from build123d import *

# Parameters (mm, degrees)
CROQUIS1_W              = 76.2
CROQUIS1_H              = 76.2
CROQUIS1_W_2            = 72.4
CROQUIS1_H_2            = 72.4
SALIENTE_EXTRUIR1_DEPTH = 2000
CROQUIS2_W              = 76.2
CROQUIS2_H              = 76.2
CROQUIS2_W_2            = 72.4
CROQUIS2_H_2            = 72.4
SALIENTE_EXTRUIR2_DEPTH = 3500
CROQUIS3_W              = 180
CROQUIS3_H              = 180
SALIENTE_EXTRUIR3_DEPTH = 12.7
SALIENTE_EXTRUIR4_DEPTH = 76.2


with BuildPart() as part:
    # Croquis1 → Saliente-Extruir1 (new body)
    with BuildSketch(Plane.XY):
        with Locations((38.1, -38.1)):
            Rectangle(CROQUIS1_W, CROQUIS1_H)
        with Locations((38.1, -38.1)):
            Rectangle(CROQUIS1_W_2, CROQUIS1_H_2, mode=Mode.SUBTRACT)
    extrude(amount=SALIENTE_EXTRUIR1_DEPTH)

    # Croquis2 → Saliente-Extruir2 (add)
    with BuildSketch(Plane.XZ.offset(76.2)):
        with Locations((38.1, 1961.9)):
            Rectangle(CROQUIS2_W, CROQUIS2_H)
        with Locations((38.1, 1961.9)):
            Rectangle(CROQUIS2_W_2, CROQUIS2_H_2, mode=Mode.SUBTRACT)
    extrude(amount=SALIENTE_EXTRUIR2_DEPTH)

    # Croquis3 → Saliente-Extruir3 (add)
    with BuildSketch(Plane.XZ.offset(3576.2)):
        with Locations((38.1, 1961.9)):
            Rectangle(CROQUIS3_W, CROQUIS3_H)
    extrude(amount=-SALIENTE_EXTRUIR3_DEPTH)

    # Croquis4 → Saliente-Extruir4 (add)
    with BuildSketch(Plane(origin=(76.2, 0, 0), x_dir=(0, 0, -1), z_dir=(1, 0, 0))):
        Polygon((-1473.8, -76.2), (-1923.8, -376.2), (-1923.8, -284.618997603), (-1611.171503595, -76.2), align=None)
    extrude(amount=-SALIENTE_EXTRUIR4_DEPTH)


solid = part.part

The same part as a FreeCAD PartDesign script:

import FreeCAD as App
import Part
import Sketcher

doc = App.newDocument("Part")
body = doc.addObject("PartDesign::Body", "Body")

sketch1 = body.newObject("Sketcher::SketchObject", "Sketch")
sketch1.AttachmentSupport = (doc.getObject("XY_Plane"), [""])
sketch1.MapMode = "FlatFace"
sketch1.addGeometry([
    Part.LineSegment(App.Vector(0, 0, 0), App.Vector(0, -76.2, 0)),
    Part.LineSegment(App.Vector(0, -76.2, 0), App.Vector(76.2, -76.2, 0)),
    Part.LineSegment(App.Vector(76.2, -76.2, 0), App.Vector(76.2, 0, 0)),
    Part.LineSegment(App.Vector(76.2, 0, 0), App.Vector(0, 0, 0)),
    Part.LineSegment(App.Vector(74.3, -74.3, 0), App.Vector(1.9, -74.3, 0)),
    Part.LineSegment(App.Vector(1.9, -74.3, 0), App.Vector(1.9, -1.9, 0)),
    Part.LineSegment(App.Vector(1.9, -1.9, 0), App.Vector(74.3, -1.9, 0)),
    Part.LineSegment(App.Vector(74.3, -1.9, 0), App.Vector(74.3, -74.3, 0)),
], False)
sketch1.addConstraint([
    Sketcher.Constraint("Coincident", 0, 2, 1, 1),
    Sketcher.Constraint("Coincident", 1, 2, 2, 1),
    Sketcher.Constraint("Coincident", 2, 2, 3, 1),
    Sketcher.Constraint("Coincident", 3, 2, 0, 1),
    Sketcher.Constraint("Coincident", 4, 2, 5, 1),
    Sketcher.Constraint("Coincident", 5, 2, 6, 1),
    Sketcher.Constraint("Coincident", 6, 2, 7, 1),
    Sketcher.Constraint("Coincident", 7, 2, 4, 1),
    Sketcher.Constraint("Vertical", 0),
    Sketcher.Constraint("Horizontal", 1),
    Sketcher.Constraint("Vertical", 2),
    Sketcher.Constraint("Horizontal", 3),
    Sketcher.Constraint("Horizontal", 4),
    Sketcher.Constraint("Vertical", 5),
    Sketcher.Constraint("Horizontal", 6),
    Sketcher.Constraint("Vertical", 7),
    Sketcher.Constraint("Coincident", 3, 2, -1, 1),
    Sketcher.Constraint("Equal", 3, 0),
    Sketcher.Constraint("Equal", 6, 5),
    Sketcher.Constraint("DistanceX", 1, 1, 1, 2, 76.2),
    Sketcher.Constraint("DistanceX", 4, 2, 4, 1, 72.4),
    Sketcher.Constraint("DistanceX", -1, 1, 4, 2, 1.9),
    Sketcher.Constraint("DistanceY", 4, 2, -1, 1, 74.3),
])
pad1 = body.newObject("PartDesign::Pad", "Pad")
pad1.Profile = sketch1
pad1.Length = 2000

sketch2 = body.newObject("Sketcher::SketchObject", "Sketch001")
sketch2.AttachmentSupport = (doc.getObject("XZ_Plane"), [""])
sketch2.MapMode = "FlatFace"
sketch2.AttachmentOffset = App.Placement(App.Vector(0, 0, 76.2), App.Rotation())
sketch2.addGeometry([
    Part.LineSegment(App.Vector(0, 2000, 0), App.Vector(0, 1923.8, 0)),
    Part.LineSegment(App.Vector(0, 1923.8, 0), App.Vector(76.2, 1923.8, 0)),
    Part.LineSegment(App.Vector(76.2, 1923.8, 0), App.Vector(76.2, 2000, 0)),
    Part.LineSegment(App.Vector(76.2, 2000, 0), App.Vector(0, 2000, 0)),
    Part.LineSegment(App.Vector(74.3, 1925.7, 0), App.Vector(1.9, 1925.7, 0)),
    Part.LineSegment(App.Vector(1.9, 1925.7, 0), App.Vector(1.9, 1998.1, 0)),
    Part.LineSegment(App.Vector(1.9, 1998.1, 0), App.Vector(74.3, 1998.1, 0)),
    Part.LineSegment(App.Vector(74.3, 1998.1, 0), App.Vector(74.3, 1925.7, 0)),
], False)
sketch2.addConstraint([
    Sketcher.Constraint("Coincident", 0, 2, 1, 1),
    Sketcher.Constraint("Coincident", 1, 2, 2, 1),
    Sketcher.Constraint("Coincident", 2, 2, 3, 1),
    Sketcher.Constraint("Coincident", 3, 2, 0, 1),
    Sketcher.Constraint("Coincident", 4, 2, 5, 1),
    Sketcher.Constraint("Coincident", 5, 2, 6, 1),
    Sketcher.Constraint("Coincident", 6, 2, 7, 1),
    Sketcher.Constraint("Coincident", 7, 2, 4, 1),
    Sketcher.Constraint("Vertical", 0),
    Sketcher.Constraint("Horizontal", 1),
    Sketcher.Constraint("Vertical", 2),
    Sketcher.Constraint("Horizontal", 3),
    Sketcher.Constraint("Horizontal", 4),
    Sketcher.Constraint("Vertical", 5),
    Sketcher.Constraint("Horizontal", 6),
    Sketcher.Constraint("Vertical", 7),
    Sketcher.Constraint("PointOnObject", 0, 2, -2),
    Sketcher.Constraint("Equal", 3, 0),
    Sketcher.Constraint("Equal", 6, 5),
    Sketcher.Constraint("DistanceX", 1, 1, 1, 2, 76.2),
    Sketcher.Constraint("DistanceX", 4, 2, 4, 1, 72.4),
    Sketcher.Constraint("DistanceY", -1, 1, 2, 2, 2000.0),
    Sketcher.Constraint("DistanceX", -1, 1, 4, 2, 1.9),
    Sketcher.Constraint("DistanceY", -1, 1, 4, 2, 1925.7),
])
pad2 = body.newObject("PartDesign::Pad", "Pad001")
pad2.Profile = sketch2
pad2.Length = 3500

sketch3 = body.newObject("Sketcher::SketchObject", "Sketch002")
sketch3.AttachmentSupport = (doc.getObject("XZ_Plane"), [""])
sketch3.MapMode = "FlatFace"
sketch3.AttachmentOffset = App.Placement(App.Vector(0, 0, 3576.2), App.Rotation())
sketch3.addGeometry([
    Part.LineSegment(App.Vector(-51.9, 2051.9, 0), App.Vector(-51.9, 1871.9, 0)),
    Part.LineSegment(App.Vector(-51.9, 1871.9, 0), App.Vector(128.1, 1871.9, 0)),
    Part.LineSegment(App.Vector(128.1, 1871.9, 0), App.Vector(128.1, 2051.9, 0)),
    Part.LineSegment(App.Vector(128.1, 2051.9, 0), App.Vector(-51.9, 2051.9, 0)),
], False)
sketch3.addConstraint([
    Sketcher.Constraint("Coincident", 0, 2, 1, 1),
    Sketcher.Constraint("Coincident", 1, 2, 2, 1),
    Sketcher.Constraint("Coincident", 2, 2, 3, 1),
    Sketcher.Constraint("Coincident", 3, 2, 0, 1),
    Sketcher.Constraint("Vertical", 0),
    Sketcher.Constraint("Horizontal", 1),
    Sketcher.Constraint("Vertical", 2),
    Sketcher.Constraint("Horizontal", 3),
    Sketcher.Constraint("Equal", 3, 0),
    Sketcher.Constraint("DistanceX", 1, 1, 1, 2, 180.0),
    Sketcher.Constraint("DistanceX", 0, 2, -1, 1, 51.9),
    Sketcher.Constraint("DistanceY", -1, 1, 0, 2, 1871.9),
])
pad3 = body.newObject("PartDesign::Pad", "Pad002")
pad3.Profile = sketch3
pad3.Length = 12.7
pad3.Reversed = True

sketch4 = body.newObject("Sketcher::SketchObject", "Sketch003")
sketch4.AttachmentSupport = (doc.getObject("YZ_Plane"), [""])
sketch4.MapMode = "FlatFace"
sketch4.AttachmentOffset = App.Placement(App.Vector(0, 0, 76.2), App.Rotation())
sketch4.addGeometry([
    Part.LineSegment(App.Vector(-376.2, 1923.8, 0), App.Vector(-76.2, 1473.8, 0)),
    Part.LineSegment(App.Vector(-76.2, 1473.8, 0), App.Vector(-76.2, 1611.171504, 0)),
    Part.LineSegment(App.Vector(-76.2, 1611.171504, 0), App.Vector(-284.618998, 1923.8, 0)),
    Part.LineSegment(App.Vector(-284.618998, 1923.8, 0), App.Vector(-376.2, 1923.8, 0)),
], False)
sketch4.addConstraint([
    Sketcher.Constraint("Coincident", 0, 2, 1, 1),
    Sketcher.Constraint("Coincident", 1, 2, 2, 1),
    Sketcher.Constraint("Coincident", 2, 2, 3, 1),
    Sketcher.Constraint("Coincident", 3, 2, 0, 1),
    Sketcher.Constraint("Vertical", 1),
    Sketcher.Constraint("Horizontal", 3),
    Sketcher.Constraint("Parallel", 0, 2),
    Sketcher.Constraint("DistanceY", 0, 2, 2, 2, 450.0),
    Sketcher.Constraint("DistanceX", 3, 2, 1, 2, 300.0),
    Sketcher.Constraint("DistanceX", 0, 2, -1, 1, 76.2),
    Sketcher.Constraint("DistanceY", -1, 1, 0, 2, 1473.8),
    Sketcher.Constraint("Distance", 2, 375.732691),
])
pad4 = body.newObject("PartDesign::Pad", "Pad003")
pad4.Profile = sketch4
pad4.Length = 76.2
pad4.Reversed = True

doc.recompute()
